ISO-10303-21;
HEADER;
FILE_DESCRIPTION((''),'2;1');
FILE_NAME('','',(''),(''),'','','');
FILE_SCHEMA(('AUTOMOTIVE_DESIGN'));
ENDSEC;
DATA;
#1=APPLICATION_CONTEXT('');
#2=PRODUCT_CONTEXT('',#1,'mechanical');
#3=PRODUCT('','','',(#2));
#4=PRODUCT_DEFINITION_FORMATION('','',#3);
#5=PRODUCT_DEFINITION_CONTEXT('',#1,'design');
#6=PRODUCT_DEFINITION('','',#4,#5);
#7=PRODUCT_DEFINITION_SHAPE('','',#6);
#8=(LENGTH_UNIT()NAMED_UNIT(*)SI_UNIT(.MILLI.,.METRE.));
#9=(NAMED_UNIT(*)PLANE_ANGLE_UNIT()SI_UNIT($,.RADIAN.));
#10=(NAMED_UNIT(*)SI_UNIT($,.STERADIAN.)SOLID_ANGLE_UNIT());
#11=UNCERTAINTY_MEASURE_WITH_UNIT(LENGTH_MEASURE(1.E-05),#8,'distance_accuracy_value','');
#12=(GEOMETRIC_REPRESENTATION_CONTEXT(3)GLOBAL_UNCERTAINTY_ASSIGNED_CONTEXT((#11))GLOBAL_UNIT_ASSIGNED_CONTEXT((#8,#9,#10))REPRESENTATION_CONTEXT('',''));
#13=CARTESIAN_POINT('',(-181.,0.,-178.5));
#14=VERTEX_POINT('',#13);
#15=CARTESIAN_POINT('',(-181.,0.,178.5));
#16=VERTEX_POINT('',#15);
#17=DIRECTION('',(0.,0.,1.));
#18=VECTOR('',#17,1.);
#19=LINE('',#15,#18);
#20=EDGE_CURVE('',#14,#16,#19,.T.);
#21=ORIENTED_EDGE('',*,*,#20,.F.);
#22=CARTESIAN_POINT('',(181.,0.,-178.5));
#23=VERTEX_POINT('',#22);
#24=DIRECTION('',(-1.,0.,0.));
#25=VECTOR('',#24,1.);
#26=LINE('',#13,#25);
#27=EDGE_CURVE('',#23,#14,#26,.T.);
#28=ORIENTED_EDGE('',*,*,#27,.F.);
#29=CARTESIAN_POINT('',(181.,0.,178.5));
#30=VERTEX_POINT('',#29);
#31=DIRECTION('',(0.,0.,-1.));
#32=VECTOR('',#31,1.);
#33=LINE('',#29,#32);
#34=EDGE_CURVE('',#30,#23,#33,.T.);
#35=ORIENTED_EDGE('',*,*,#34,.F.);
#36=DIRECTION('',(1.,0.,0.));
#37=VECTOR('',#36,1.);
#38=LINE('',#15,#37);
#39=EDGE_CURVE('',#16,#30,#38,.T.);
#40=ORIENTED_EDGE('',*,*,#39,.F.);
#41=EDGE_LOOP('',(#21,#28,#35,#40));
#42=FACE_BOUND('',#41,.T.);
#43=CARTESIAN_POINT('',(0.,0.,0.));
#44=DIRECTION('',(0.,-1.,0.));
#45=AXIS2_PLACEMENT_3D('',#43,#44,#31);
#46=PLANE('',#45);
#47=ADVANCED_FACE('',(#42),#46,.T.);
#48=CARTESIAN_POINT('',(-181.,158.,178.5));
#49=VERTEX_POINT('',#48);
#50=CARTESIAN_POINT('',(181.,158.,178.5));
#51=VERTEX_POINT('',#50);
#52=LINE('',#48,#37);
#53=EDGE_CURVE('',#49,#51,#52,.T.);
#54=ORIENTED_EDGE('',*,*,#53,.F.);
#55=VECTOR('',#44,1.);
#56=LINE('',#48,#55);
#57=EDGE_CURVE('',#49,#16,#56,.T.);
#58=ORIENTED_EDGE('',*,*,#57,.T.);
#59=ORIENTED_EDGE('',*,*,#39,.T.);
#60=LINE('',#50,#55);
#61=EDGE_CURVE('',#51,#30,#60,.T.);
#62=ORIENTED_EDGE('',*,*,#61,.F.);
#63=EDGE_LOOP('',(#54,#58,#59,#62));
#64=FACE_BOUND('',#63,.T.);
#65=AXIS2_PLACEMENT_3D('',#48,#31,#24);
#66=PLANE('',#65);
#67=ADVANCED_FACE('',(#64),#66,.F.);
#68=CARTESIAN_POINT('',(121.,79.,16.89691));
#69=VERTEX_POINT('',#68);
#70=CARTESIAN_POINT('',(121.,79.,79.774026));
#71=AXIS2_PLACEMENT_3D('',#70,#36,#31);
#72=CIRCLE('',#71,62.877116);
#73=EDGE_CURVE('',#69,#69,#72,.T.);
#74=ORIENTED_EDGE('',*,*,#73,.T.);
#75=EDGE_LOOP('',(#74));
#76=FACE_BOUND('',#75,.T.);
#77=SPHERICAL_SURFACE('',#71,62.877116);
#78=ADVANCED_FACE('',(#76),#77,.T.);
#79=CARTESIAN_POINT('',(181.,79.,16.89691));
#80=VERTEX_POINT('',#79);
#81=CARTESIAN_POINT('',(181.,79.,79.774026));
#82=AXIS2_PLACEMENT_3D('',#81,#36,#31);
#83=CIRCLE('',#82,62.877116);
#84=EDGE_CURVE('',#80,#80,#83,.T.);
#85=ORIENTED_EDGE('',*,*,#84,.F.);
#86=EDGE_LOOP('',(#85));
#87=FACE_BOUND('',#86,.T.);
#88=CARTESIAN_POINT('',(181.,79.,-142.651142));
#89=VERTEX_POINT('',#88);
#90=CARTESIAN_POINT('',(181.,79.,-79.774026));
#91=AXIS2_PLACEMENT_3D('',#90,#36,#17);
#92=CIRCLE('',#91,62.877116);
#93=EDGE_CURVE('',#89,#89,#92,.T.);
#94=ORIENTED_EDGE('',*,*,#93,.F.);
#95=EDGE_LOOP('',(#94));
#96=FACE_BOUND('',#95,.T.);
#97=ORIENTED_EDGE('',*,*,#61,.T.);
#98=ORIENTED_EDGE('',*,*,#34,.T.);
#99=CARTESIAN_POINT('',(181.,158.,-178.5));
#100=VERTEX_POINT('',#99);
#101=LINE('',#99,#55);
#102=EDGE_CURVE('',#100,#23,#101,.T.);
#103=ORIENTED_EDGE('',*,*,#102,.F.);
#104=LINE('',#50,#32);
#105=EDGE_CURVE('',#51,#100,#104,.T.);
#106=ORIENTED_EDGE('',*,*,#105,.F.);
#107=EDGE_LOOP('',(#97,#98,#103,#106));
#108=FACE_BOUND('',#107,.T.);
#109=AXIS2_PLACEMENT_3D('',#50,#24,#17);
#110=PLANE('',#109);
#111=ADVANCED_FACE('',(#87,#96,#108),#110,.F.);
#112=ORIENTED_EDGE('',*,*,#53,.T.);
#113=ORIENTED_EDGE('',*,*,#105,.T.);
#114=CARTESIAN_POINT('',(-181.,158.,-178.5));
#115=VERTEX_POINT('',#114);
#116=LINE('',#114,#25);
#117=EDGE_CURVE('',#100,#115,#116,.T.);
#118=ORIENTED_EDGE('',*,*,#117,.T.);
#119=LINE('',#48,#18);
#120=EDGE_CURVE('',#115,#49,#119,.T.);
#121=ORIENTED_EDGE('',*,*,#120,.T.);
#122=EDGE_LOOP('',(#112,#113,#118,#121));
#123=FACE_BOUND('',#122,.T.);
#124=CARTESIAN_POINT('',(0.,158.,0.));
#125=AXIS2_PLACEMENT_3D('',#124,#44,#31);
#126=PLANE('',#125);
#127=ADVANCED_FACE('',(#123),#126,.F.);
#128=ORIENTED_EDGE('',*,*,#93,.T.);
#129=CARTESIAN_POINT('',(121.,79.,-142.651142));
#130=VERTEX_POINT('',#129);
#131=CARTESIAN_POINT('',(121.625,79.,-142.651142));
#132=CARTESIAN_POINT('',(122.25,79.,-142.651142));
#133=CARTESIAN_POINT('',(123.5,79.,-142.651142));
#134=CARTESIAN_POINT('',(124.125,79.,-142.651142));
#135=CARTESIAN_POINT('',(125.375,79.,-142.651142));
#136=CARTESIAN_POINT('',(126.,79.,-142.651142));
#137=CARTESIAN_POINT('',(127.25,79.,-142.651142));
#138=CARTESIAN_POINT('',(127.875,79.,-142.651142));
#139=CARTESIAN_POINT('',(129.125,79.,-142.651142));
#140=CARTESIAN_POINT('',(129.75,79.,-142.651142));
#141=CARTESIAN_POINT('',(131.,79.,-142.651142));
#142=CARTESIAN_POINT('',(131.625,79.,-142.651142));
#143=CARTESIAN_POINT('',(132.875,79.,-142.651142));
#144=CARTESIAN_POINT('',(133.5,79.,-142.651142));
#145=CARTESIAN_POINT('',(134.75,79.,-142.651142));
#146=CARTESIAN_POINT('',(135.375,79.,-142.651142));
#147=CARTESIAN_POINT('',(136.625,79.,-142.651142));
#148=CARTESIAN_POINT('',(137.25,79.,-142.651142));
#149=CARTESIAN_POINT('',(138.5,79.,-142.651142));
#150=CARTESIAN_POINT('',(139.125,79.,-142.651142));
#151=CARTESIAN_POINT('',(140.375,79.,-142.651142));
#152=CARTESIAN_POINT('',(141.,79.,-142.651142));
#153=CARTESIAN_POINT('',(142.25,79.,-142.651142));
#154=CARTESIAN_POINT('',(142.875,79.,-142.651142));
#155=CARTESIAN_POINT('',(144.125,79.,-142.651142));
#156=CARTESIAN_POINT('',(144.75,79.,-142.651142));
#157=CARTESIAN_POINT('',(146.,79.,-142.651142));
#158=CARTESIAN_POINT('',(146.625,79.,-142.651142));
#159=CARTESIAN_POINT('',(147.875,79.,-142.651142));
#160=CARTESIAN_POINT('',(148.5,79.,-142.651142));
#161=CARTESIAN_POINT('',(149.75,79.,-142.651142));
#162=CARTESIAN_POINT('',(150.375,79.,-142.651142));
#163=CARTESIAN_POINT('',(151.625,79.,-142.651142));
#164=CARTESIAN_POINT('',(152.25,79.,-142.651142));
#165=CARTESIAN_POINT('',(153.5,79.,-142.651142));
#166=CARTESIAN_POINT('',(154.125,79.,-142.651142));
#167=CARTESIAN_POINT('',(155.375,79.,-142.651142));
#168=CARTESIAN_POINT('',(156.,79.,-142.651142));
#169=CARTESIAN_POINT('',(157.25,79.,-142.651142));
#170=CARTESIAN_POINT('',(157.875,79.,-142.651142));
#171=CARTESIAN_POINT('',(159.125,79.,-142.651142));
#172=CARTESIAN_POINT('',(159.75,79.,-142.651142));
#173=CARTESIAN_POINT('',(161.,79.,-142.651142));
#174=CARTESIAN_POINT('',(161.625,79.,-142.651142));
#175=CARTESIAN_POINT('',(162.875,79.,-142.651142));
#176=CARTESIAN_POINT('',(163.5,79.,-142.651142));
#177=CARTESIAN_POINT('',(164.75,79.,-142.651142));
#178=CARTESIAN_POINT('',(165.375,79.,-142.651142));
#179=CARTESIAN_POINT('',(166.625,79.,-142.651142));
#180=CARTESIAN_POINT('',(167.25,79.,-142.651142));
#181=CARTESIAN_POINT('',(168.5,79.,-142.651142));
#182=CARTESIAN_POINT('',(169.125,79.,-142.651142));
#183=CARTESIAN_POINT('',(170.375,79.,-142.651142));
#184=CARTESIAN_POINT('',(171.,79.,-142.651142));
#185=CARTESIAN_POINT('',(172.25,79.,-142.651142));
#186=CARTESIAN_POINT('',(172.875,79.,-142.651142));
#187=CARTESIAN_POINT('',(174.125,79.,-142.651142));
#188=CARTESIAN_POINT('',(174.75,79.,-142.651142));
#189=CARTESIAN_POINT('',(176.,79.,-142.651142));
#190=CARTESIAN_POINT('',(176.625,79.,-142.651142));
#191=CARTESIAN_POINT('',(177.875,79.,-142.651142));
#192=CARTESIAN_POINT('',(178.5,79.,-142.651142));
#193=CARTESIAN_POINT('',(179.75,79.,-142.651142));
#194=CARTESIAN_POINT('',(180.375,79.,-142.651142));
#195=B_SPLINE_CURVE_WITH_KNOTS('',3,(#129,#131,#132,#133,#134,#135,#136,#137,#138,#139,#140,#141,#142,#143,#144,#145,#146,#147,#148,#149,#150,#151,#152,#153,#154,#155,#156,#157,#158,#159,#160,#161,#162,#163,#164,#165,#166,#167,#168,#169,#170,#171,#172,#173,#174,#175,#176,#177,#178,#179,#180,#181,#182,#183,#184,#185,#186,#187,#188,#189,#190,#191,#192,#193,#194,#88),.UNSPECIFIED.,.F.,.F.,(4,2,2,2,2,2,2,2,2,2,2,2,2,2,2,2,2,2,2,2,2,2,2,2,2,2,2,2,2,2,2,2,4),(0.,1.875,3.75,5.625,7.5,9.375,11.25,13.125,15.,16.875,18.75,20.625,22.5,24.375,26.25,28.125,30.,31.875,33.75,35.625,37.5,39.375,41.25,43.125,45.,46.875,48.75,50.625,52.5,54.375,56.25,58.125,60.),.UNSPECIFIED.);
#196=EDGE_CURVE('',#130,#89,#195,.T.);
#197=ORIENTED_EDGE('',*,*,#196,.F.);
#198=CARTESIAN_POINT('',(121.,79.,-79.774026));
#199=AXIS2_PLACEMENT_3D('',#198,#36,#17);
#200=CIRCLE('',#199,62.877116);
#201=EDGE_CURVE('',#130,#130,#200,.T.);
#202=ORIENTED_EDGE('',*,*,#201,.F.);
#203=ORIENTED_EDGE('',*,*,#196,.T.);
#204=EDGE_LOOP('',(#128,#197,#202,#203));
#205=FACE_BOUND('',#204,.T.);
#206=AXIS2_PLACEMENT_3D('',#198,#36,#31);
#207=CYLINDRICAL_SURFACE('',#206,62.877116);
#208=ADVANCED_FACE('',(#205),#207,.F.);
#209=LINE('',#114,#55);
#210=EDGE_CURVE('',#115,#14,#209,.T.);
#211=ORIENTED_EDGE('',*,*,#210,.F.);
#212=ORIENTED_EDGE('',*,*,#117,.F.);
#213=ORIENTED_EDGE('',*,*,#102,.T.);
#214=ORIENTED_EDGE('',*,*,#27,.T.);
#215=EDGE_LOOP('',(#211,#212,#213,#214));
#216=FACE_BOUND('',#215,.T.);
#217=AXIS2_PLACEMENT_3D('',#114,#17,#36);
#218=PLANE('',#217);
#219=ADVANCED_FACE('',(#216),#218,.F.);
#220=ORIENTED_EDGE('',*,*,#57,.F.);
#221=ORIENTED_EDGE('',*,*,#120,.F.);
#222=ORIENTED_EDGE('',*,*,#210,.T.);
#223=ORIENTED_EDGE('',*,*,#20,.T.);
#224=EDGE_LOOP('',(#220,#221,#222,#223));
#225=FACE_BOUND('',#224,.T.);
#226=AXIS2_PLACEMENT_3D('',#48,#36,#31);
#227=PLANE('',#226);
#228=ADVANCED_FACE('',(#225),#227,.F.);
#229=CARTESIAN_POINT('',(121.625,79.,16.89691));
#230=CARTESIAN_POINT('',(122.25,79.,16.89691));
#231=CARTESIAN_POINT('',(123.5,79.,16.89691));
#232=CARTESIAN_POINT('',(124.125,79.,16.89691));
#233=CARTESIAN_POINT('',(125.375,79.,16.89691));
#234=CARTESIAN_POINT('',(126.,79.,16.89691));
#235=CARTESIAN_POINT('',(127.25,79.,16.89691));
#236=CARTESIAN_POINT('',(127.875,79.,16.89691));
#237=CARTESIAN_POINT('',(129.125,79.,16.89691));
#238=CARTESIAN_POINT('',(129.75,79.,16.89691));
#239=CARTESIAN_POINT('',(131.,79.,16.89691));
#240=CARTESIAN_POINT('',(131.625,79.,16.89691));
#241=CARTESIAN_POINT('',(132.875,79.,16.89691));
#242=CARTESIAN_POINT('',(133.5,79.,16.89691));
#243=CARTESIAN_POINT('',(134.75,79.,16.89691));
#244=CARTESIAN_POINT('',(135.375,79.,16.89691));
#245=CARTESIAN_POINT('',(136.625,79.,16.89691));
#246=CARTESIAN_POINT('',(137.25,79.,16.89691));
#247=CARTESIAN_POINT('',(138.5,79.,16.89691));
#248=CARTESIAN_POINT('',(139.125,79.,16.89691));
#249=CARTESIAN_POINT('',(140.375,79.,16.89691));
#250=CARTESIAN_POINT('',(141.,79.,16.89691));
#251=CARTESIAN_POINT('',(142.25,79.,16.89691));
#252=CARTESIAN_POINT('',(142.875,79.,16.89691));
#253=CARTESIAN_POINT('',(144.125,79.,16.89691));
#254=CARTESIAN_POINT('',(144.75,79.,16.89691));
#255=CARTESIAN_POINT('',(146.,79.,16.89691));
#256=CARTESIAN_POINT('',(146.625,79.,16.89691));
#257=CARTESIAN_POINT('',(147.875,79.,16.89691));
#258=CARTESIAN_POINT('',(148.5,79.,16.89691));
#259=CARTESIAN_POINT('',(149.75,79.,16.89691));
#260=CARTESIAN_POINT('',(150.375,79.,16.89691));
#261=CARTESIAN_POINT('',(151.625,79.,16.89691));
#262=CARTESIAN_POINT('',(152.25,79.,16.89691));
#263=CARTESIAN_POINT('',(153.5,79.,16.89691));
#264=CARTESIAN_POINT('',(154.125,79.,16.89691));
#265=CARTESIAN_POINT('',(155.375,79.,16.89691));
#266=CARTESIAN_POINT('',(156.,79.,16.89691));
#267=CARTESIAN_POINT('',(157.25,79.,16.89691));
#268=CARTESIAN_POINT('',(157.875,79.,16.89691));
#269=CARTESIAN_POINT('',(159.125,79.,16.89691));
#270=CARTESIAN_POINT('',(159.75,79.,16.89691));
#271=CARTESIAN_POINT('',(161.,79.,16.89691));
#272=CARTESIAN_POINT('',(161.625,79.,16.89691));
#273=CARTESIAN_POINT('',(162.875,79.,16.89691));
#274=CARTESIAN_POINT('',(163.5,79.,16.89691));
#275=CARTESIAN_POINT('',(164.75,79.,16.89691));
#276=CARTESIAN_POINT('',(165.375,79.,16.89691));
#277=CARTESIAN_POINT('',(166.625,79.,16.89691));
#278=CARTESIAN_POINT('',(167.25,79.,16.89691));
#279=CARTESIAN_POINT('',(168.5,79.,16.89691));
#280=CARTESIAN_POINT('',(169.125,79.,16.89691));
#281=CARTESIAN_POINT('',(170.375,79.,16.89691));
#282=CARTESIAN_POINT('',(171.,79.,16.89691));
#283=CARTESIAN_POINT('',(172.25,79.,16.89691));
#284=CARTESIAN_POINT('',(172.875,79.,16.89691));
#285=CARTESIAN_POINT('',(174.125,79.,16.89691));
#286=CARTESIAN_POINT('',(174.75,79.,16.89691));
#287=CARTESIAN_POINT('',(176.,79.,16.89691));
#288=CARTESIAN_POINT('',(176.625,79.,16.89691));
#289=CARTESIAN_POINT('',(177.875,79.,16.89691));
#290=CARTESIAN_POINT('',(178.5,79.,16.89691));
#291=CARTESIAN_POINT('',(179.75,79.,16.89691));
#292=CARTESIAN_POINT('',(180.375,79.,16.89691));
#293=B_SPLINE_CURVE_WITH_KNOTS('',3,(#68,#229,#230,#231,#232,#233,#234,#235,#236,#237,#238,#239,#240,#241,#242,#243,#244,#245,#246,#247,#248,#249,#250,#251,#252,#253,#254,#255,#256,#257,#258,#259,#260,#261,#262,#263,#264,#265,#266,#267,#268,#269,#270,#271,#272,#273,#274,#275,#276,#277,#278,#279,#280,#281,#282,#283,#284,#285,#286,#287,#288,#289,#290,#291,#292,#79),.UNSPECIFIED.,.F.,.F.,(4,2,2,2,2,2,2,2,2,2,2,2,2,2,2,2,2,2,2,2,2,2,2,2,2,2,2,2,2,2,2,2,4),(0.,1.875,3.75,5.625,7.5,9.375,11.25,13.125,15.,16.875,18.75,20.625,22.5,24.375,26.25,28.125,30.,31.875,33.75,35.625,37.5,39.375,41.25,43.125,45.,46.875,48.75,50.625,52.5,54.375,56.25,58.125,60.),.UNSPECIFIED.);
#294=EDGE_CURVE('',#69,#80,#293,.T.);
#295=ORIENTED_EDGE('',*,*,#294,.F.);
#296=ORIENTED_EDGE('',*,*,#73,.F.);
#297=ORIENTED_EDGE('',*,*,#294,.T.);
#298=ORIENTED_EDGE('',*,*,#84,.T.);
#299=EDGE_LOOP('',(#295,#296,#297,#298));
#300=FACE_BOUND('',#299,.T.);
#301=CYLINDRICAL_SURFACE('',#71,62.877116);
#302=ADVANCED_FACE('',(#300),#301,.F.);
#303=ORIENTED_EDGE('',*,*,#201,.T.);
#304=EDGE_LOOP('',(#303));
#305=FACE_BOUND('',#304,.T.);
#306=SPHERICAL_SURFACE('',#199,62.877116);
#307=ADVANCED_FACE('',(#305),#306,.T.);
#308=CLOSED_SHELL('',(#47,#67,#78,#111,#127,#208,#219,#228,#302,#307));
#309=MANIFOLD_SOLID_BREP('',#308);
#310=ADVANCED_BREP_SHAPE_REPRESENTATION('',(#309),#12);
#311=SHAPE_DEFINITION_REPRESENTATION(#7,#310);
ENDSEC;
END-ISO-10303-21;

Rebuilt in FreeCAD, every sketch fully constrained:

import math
import FreeCAD as App
import Part
import Sketcher

doc = App.newDocument("Part")
body = doc.addObject("PartDesign::Body", "Body")

sketch1 = body.newObject("Sketcher::SketchObject", "Sketch")
sketch1.AttachmentSupport = (doc.getObject("XZ_Plane"), [""])
sketch1.MapMode = "FlatFace"
sketch1.addGeometry([
    Part.LineSegment(App.Vector(-181, -178, 0), App.Vector(-181, 178, 0)),
    Part.LineSegment(App.Vector(-181, 178, 0), App.Vector(181, 178, 0)),
    Part.LineSegment(App.Vector(181, 178, 0), App.Vector(181, -178, 0)),
    Part.LineSegment(App.Vector(181, -178, 0), App.Vector(-181, -178, 0)),
], False)
sketch1.addConstraint([
    Sketcher.Constraint("Coincident", 0, 2, 1, 1),
    Sketcher.Constraint("Coincident", 1, 2, 2, 1),
    Sketcher.Constraint("Coincident", 2, 2, 3, 1),
    Sketcher.Constraint("Coincident", 3, 2, 0, 1),
    Sketcher.Constraint("Vertical", 0),
    Sketcher.Constraint("Horizontal", 1),
    Sketcher.Constraint("Vertical", 2),
    Sketcher.Constraint("Horizontal", 3),
    Sketcher.Constraint("Symmetric", 0, 2, 2, 2, -1, 1),
    Sketcher.Constraint("DistanceX", 1, 1, 1, 2, 362.0),
    Sketcher.Constraint("DistanceY", 0, 1, 0, 2, 357.0),
])
pad1 = body.newObject("PartDesign::Pad", "Pad")
pad1.Profile = sketch1
pad1.Length = 158
pad1.Reversed = True

sketch2 = body.newObject("Sketcher::SketchObject", "Sketch001")
sketch2.AttachmentSupport = (doc.getObject("YZ_Plane"), [""])
sketch2.MapMode = "FlatFace"
sketch2.AttachmentOffset = App.Placement(App.Vector(0, 0, 181), App.Rotation())
sketch2.addGeometry([
    Part.Circle(App.Vector(79, 80, 0), App.Vector(0, 0, 1), 63),
    Part.Circle(App.Vector(79, -80, 0), App.Vector(0, 0, 1), 63),
], False)
sketch2.addConstraint([
    Sketcher.Constraint("Equal", 0, 1),
    Sketcher.Constraint("Symmetric", 0, 3, 1, 3, -1),
    Sketcher.Constraint("DistanceX", -1, 1, 0, 3, 79.0),
    Sketcher.Constraint("Diameter", 0, 125.754232),
    Sketcher.Constraint("DistanceY", 1, 3, 0, 3, 159.548052),
])
pocket1 = body.newObject("PartDesign::Pocket", "Pocket")
pocket1.Profile = sketch2
pocket1.Length = 60

sketch3 = body.newObject("Sketcher::SketchObject", "Sketch002")
sketch3.AttachmentSupport = (doc.getObject("YZ_Plane"), [""])
sketch3.MapMode = "FlatFace"
sketch3.AttachmentOffset = App.Placement(App.Vector(0, 0, 121), App.Rotation())
sketch3.addGeometry([
    Part.LineSegment(App.Vector(16, 80, 0), App.Vector(142, 80, 0)),
    Part.ArcOfCircle(Part.Circle(App.Vector(79, 80, 0), App.Vector(0, 0, 1), 63), math.radians(0), math.radians(180)),
], False)
sketch3.addGeometry(Part.LineSegment(App.Vector(16, 80, 0), App.Vector(142, 80, 0)), True)
sketch3.addConstraint([
    Sketcher.Constraint("Coincident", 0, 1, 1, 2),
    Sketcher.Constraint("Coincident", 1, 1, 0, 2),
    Sketcher.Constraint("Horizontal", 0),
    Sketcher.Constraint("Horizontal", 2),
    Sketcher.Constraint("Coincident", 2, 1, 0, 1),
    Sketcher.Constraint("Horizontal", 1, 3, 0, 1),
    Sketcher.Constraint("Equal", 0, 2),
    Sketcher.Constraint("DistanceX", -1, 1, 1, 3, 79.0),
    Sketcher.Constraint("Radius", 1, 62.877116),
    Sketcher.Constraint("DistanceY", -1, 1, 1, 3, 79.774026),
])
revolution = body.newObject("PartDesign::Revolution", "Revolution")
revolution.Profile = sketch3
revolution.ReferenceAxis = (sketch3, ["Axis0"])
revolution.Angle = 180

sketch4 = body.newObject("Sketcher::SketchObject", "Sketch003")
sketch4.AttachmentSupport = (doc.getObject("YZ_Plane"), [""])
sketch4.MapMode = "FlatFace"
sketch4.AttachmentOffset = App.Placement(App.Vector(0, 0, 121), App.Rotation())
sketch4.addGeometry([
    Part.LineSegment(App.Vector(16, -80, 0), App.Vector(142, -80, 0)),
    Part.ArcOfCircle(Part.Circle(App.Vector(79, -80, 0), App.Vector(0, 0, 1), 63), math.radians(0), math.radians(180)),
], False)
sketch4.addGeometry(Part.LineSegment(App.Vector(16, -80, 0), App.Vector(142, -80, 0)), True)
sketch4.addConstraint([
    Sketcher.Constraint("Coincident", 0, 1, 1, 2),
    Sketcher.Constraint("Coincident", 1, 1, 0, 2),
    Sketcher.Constraint("Horizontal", 0),
    Sketcher.Constraint("Horizontal", 2),
    Sketcher.Constraint("Coincident", 2, 1, 0, 1),
    Sketcher.Constraint("Horizontal", 1, 3, 0, 1),
    Sketcher.Constraint("Equal", 0, 2),
    Sketcher.Constraint("DistanceX", -1, 1, 1, 3, 79.0),
    Sketcher.Constraint("Radius", 1, 62.877116),
    Sketcher.Constraint("DistanceY", 1, 3, -1, 1, 79.774026),
])
revolution2 = body.newObject("PartDesign::Revolution", "Revolution001")
revolution2.Profile = sketch4
revolution2.ReferenceAxis = (sketch4, ["Axis0"])
revolution2.Angle = 180

doc.recompute()
